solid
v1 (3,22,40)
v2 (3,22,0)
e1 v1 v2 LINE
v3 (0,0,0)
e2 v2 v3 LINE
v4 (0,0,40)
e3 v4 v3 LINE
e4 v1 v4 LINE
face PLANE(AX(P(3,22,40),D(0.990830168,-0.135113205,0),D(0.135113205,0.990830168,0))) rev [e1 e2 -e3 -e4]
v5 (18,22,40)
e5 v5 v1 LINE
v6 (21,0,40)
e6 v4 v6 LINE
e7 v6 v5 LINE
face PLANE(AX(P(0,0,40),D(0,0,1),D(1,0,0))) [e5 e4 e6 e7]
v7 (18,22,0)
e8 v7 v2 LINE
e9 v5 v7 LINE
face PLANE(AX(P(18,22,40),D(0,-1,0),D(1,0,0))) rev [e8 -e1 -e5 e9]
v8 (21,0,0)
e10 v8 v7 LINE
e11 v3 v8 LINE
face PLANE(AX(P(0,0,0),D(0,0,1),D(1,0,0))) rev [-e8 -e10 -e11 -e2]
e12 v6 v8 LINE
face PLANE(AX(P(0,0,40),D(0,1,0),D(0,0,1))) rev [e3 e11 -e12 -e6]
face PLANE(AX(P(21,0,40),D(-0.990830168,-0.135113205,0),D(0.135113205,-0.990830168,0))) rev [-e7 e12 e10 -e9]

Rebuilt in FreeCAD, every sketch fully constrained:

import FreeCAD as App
import Part
import Sketcher
from FreeCAD import Vector


def add_polygon(sketch, points):
    """Adds a closed chain of lines whose ends are joined by coincident constraints."""
    first, n = sketch.GeometryCount, len(points)
    for a, b in zip(points, points[1:] + points[:1]):
        sketch.addGeometry(Part.LineSegment(App.Vector(*a, 0), App.Vector(*b, 0)), False)
    for i in range(n):
        sketch.addConstraint(Sketcher.Constraint("Coincident", first + i, 2, first + (i + 1) % n, 1))

doc = App.newDocument("Part")
body = doc.addObject("PartDesign::Body", "Body")

# Sketch on XY plane
sketch1 = body.newObject("Sketcher::SketchObject", "Sketch")
sketch1.AttachmentSupport = (doc.getObject("XY_Plane"), [""])
sketch1.MapMode = "FlatFace"
add_polygon(sketch1, [(0, 0), (21, 0), (18, 22), (3, 22)])  # lines 0-3
sketch1.addConstraint([
    Sketcher.Constraint("Horizontal", 0),
    Sketcher.Constraint("Horizontal", 2),
    Sketcher.Constraint("Coincident", 3, 2, -1, 1),
    Sketcher.Constraint("Equal", 1, 3),
    Sketcher.Constraint("DistanceX", 0, 1, 0, 2, 21.0),
    Sketcher.Constraint("DistanceX", 2, 2, 2, 1, 15.0),
    Sketcher.Constraint("DistanceY", -1, 1, 1, 2, 22.0),
])
pad1 = body.newObject("PartDesign::Pad", "Pad")
pad1.Profile = sketch1
pad1.Length = 40

doc.recompute()
